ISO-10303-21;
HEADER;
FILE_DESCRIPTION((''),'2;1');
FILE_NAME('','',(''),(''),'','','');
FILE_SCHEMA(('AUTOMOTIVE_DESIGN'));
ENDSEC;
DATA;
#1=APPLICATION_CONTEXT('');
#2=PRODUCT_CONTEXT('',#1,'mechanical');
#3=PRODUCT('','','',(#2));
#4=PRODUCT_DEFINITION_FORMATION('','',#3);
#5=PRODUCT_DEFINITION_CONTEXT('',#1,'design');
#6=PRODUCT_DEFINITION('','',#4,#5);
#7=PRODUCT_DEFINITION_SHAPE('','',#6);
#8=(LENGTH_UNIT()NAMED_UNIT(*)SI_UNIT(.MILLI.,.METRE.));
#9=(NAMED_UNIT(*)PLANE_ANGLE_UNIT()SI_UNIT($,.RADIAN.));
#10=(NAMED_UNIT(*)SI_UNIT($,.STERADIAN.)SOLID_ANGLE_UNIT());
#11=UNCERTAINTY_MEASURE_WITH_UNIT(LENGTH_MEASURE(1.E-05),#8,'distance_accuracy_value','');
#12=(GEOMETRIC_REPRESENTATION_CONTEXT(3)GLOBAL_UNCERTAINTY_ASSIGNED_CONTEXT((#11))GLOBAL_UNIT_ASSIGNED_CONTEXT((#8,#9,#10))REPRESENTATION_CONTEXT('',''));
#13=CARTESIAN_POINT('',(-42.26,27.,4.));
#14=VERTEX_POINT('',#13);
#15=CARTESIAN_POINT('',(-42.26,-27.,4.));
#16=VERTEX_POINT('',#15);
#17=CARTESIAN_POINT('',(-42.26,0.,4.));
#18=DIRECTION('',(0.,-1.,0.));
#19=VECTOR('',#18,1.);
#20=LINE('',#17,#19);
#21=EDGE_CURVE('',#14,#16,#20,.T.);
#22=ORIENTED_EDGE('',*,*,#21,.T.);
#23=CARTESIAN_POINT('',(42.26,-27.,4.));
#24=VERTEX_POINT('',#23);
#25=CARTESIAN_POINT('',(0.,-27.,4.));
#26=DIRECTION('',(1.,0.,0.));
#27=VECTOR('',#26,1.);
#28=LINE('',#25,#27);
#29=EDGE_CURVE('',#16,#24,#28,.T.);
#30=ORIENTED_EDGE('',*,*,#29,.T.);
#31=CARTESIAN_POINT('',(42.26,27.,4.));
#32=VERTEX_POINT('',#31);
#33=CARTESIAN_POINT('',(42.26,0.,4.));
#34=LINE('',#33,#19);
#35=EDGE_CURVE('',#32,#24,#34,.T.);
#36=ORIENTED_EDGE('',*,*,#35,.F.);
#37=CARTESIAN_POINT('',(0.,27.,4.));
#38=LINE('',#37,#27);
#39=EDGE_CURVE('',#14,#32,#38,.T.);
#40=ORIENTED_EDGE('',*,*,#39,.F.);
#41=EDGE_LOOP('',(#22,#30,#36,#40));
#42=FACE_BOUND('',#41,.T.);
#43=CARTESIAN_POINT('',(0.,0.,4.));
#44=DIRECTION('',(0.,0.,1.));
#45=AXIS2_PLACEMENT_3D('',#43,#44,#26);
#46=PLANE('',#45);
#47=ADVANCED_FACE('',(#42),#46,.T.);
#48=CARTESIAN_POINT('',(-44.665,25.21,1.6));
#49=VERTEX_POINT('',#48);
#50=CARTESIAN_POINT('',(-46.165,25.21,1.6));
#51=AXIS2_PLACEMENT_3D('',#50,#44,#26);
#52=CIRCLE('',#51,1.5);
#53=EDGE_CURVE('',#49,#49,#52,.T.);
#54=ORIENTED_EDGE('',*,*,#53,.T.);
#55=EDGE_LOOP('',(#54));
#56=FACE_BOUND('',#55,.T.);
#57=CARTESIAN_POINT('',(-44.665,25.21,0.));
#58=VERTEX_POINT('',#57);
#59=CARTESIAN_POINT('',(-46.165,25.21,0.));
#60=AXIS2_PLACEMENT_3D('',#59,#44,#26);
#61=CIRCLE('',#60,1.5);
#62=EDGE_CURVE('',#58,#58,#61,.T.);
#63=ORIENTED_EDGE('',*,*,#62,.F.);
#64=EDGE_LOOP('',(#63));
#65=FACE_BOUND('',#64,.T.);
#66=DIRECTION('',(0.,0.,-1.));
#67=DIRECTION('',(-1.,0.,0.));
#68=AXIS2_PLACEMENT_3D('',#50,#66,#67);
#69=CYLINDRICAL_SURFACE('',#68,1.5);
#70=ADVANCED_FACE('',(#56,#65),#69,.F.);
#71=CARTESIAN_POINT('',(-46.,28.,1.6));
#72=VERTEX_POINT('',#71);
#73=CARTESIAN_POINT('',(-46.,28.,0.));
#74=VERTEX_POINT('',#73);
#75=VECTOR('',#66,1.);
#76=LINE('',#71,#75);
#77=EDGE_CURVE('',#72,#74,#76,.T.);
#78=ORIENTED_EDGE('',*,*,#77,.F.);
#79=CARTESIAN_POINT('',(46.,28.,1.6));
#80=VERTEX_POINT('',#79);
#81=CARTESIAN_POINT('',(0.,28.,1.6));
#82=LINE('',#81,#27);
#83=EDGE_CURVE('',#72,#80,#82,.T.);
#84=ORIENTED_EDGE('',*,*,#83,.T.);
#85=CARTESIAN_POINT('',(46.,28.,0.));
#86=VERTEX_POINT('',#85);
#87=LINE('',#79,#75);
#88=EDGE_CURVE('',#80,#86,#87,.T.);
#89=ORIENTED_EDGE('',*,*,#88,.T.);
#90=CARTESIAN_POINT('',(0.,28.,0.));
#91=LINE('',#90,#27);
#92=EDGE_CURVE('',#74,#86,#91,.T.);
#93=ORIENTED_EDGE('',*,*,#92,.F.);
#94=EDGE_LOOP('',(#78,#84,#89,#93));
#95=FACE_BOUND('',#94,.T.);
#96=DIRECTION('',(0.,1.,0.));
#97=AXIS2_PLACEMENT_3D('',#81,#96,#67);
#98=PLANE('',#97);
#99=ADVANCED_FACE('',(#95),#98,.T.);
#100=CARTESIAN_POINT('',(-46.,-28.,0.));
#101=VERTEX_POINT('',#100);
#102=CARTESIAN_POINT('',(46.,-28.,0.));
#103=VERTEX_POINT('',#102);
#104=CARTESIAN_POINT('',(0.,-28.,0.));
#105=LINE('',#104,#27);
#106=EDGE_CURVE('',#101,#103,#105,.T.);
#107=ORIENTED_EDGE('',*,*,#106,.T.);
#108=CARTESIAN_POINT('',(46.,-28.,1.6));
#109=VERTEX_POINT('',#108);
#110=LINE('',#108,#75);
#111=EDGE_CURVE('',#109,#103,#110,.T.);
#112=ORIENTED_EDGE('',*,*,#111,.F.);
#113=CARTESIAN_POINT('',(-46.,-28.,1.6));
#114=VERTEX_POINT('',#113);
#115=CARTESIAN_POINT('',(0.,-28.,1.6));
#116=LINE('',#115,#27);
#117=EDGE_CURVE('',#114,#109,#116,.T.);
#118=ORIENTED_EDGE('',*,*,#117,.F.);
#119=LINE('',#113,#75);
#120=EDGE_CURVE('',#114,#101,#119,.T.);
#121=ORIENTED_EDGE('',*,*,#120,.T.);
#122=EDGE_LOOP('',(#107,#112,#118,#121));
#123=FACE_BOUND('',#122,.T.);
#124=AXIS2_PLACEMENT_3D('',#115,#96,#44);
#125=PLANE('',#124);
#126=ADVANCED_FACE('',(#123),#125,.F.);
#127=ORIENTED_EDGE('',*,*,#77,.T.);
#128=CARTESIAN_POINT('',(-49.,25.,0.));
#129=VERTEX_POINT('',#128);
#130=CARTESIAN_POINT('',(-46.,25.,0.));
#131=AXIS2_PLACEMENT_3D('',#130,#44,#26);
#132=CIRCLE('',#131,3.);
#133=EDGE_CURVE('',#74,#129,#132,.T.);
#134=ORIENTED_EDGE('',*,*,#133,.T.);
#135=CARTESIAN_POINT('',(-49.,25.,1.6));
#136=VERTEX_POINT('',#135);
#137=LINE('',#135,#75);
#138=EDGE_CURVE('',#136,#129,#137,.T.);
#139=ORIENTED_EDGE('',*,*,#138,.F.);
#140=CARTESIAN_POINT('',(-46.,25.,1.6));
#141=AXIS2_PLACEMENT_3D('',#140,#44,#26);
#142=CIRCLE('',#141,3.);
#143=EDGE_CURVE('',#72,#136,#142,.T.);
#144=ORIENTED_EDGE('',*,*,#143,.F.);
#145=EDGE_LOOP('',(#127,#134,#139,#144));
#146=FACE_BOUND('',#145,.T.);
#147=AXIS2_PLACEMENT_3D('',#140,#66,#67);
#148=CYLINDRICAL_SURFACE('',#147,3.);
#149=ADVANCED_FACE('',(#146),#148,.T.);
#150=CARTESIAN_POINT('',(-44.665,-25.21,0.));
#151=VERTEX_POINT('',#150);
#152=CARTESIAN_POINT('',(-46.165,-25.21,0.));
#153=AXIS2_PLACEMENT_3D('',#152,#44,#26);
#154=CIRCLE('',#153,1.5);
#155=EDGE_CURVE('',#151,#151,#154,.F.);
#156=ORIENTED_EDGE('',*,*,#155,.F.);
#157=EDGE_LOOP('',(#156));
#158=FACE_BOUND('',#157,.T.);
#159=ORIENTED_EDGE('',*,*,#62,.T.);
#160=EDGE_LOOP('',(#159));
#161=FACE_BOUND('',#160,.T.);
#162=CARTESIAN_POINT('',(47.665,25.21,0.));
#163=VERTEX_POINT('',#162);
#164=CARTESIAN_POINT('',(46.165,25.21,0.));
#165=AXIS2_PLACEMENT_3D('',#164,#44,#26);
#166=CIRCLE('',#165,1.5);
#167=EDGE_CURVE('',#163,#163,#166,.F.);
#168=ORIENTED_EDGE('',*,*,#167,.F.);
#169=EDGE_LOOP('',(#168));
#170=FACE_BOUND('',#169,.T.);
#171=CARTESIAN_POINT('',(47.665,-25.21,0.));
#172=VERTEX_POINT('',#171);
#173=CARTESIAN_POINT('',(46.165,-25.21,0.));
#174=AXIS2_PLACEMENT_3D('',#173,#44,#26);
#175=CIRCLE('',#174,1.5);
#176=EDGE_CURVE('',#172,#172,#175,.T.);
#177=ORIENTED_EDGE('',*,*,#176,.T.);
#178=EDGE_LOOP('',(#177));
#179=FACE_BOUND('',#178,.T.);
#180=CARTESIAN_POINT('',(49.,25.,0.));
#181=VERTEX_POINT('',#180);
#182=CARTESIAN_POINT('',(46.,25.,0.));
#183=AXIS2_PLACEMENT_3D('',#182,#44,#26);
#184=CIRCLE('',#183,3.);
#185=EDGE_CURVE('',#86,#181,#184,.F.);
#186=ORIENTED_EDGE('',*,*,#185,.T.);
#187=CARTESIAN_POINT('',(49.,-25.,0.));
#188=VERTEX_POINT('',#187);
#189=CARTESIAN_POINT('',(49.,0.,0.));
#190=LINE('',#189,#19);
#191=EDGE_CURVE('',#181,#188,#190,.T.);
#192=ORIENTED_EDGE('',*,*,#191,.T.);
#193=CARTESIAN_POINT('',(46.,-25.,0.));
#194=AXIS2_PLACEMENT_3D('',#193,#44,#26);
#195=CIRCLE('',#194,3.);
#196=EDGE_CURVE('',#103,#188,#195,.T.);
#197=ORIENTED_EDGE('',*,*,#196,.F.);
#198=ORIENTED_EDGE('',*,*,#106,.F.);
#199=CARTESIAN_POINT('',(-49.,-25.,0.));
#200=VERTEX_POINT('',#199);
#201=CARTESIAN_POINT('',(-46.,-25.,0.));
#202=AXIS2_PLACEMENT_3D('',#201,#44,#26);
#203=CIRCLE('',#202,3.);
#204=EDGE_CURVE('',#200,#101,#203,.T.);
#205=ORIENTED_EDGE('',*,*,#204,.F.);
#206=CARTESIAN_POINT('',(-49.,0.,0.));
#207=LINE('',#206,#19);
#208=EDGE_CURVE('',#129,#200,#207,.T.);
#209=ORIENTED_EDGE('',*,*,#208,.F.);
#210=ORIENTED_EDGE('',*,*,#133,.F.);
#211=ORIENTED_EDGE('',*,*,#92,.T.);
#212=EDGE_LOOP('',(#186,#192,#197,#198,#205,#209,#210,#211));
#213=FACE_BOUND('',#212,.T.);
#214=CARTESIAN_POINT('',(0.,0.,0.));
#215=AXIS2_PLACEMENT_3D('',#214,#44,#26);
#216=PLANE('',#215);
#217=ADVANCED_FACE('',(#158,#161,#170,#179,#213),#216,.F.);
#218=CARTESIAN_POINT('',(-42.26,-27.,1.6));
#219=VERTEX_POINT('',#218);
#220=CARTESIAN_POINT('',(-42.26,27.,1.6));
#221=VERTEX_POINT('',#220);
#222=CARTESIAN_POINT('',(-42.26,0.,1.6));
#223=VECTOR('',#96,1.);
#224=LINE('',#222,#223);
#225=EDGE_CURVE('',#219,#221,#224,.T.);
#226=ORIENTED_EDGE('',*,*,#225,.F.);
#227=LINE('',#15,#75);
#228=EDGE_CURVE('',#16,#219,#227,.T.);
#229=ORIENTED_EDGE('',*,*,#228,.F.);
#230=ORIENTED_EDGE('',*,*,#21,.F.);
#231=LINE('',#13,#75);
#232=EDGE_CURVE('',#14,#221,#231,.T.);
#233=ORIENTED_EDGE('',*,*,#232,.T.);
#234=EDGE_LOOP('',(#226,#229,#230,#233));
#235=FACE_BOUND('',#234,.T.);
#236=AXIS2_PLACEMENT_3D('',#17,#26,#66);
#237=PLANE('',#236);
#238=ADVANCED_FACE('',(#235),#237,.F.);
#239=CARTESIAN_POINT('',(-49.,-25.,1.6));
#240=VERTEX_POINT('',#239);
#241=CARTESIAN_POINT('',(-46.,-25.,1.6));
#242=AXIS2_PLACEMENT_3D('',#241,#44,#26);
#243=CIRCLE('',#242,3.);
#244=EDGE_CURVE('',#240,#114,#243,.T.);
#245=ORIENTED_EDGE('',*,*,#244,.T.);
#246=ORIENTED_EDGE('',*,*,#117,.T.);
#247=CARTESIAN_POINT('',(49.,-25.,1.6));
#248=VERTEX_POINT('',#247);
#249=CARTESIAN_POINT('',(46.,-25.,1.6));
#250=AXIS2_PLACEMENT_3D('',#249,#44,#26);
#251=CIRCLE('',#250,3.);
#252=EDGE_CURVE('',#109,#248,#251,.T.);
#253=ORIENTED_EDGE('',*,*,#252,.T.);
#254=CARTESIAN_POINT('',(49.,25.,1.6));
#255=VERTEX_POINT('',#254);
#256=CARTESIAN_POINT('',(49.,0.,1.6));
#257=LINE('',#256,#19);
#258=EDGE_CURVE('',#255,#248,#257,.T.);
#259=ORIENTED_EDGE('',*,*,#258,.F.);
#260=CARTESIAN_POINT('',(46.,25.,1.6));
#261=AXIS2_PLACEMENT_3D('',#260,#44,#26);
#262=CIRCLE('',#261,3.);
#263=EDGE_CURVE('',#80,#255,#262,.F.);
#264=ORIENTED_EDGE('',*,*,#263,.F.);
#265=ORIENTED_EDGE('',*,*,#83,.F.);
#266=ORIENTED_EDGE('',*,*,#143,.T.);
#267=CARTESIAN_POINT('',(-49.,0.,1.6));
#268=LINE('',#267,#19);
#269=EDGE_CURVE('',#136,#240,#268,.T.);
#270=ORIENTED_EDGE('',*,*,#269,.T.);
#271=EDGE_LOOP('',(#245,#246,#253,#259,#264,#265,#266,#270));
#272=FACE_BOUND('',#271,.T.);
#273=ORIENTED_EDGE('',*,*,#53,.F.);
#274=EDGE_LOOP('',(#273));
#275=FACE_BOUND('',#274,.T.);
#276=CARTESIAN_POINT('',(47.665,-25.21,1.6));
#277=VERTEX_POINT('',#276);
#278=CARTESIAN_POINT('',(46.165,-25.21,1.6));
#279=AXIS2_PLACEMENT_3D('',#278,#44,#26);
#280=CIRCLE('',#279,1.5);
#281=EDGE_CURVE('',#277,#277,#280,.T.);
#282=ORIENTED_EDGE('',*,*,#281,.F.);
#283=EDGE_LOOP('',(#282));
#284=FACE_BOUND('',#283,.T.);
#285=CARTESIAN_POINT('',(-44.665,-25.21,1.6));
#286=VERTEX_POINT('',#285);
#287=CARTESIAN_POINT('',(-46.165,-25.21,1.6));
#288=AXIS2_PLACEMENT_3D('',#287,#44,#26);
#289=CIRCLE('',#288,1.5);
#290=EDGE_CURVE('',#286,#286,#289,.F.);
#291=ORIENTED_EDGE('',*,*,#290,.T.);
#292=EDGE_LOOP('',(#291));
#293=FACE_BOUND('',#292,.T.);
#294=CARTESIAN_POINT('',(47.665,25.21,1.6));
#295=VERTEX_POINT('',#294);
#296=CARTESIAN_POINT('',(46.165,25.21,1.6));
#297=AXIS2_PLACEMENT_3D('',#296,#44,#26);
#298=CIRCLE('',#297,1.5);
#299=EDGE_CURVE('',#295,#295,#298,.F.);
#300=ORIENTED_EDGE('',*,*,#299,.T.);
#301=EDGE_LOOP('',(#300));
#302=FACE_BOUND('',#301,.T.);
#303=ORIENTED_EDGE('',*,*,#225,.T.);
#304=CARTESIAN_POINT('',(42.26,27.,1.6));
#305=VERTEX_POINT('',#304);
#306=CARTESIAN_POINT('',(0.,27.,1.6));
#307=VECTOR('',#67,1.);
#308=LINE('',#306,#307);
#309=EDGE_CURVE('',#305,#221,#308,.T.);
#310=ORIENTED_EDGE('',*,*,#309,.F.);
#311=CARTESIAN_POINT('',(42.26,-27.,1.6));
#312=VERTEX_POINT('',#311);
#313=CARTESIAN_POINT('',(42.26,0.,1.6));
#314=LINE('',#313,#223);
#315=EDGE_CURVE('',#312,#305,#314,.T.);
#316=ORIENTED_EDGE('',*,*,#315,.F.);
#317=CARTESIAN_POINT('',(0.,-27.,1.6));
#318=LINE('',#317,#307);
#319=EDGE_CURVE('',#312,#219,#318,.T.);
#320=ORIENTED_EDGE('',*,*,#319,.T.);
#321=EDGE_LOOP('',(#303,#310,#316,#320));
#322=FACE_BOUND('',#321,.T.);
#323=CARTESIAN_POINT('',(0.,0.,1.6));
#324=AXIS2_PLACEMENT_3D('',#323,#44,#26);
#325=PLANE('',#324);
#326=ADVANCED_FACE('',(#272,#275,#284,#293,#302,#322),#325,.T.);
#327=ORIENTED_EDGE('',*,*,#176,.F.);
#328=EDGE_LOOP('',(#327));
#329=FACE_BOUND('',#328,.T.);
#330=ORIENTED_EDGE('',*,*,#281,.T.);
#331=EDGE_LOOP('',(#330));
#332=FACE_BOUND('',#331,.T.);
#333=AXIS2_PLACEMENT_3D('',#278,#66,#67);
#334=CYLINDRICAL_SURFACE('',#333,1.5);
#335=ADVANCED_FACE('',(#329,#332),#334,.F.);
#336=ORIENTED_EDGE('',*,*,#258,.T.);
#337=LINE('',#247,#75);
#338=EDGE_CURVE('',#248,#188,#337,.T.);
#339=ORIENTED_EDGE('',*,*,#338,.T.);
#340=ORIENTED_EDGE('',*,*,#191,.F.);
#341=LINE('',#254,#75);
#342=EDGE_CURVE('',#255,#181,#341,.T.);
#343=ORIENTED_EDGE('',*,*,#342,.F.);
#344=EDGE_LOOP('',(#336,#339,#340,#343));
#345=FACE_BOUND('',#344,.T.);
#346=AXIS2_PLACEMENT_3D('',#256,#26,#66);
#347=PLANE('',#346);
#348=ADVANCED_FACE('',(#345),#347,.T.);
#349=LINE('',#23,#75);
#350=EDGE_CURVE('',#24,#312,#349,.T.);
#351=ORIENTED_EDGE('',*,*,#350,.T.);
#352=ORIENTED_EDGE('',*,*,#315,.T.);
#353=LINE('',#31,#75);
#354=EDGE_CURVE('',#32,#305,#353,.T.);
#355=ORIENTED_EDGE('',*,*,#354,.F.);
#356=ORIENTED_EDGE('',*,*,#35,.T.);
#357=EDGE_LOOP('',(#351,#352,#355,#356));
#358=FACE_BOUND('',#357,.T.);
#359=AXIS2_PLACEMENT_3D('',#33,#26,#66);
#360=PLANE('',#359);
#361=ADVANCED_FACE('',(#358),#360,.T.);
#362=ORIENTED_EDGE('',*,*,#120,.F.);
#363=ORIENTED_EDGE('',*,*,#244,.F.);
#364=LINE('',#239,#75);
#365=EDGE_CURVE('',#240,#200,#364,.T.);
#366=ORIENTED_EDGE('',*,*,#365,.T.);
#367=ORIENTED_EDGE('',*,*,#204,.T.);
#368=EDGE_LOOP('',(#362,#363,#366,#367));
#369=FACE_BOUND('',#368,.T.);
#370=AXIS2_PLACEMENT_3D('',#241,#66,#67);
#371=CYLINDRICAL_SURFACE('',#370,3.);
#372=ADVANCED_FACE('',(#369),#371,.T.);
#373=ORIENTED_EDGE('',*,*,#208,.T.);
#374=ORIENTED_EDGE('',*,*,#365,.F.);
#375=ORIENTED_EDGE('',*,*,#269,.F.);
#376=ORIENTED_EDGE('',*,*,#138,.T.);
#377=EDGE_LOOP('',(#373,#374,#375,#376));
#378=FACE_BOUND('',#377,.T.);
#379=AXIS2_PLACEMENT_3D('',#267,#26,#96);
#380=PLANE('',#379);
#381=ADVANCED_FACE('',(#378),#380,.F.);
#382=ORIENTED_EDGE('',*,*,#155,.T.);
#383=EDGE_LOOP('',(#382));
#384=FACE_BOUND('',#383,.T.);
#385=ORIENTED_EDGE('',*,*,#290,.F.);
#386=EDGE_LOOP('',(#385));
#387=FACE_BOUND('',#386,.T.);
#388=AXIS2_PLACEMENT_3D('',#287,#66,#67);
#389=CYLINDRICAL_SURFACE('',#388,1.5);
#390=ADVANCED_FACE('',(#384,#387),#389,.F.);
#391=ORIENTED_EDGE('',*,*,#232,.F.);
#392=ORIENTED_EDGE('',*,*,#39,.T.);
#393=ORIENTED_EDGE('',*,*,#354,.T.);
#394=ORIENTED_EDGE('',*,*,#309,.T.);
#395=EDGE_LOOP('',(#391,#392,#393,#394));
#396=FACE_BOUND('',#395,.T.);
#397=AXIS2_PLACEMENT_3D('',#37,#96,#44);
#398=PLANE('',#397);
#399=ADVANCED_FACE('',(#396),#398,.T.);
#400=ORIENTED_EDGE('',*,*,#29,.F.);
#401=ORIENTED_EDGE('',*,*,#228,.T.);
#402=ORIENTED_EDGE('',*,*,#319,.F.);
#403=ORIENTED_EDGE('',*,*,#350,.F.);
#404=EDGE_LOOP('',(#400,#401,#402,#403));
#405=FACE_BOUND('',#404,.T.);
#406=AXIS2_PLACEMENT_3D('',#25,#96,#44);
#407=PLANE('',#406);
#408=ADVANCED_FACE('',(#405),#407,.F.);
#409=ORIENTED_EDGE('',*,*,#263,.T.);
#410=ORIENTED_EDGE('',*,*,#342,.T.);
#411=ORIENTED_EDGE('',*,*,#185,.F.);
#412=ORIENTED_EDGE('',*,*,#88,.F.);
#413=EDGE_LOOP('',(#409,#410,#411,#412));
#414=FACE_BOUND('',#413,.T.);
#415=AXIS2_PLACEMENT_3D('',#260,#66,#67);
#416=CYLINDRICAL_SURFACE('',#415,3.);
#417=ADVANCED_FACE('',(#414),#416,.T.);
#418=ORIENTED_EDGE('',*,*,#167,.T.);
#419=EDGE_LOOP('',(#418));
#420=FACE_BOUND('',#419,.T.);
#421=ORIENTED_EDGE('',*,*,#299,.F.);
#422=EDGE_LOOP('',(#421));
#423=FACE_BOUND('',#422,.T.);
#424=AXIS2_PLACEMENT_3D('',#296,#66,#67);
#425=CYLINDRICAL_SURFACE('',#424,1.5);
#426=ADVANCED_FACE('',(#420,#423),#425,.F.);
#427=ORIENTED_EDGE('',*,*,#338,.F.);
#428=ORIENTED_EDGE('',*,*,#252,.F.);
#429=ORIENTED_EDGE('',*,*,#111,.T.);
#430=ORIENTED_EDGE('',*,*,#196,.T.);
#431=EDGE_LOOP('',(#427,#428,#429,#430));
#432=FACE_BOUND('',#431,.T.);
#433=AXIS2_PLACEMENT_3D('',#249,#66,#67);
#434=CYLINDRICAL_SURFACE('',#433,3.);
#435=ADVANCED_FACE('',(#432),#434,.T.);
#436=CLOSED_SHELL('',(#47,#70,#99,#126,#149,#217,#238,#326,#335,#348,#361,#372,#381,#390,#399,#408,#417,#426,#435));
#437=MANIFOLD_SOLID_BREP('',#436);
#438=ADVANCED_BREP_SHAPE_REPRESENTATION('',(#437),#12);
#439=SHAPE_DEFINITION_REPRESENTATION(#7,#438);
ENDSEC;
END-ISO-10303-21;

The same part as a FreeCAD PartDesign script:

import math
import FreeCAD as App
import Part
import Sketcher
Q = App.Units.Quantity


def add_polygon(sketch, points):
    """Adds a closed chain of lines whose ends are joined by coincident constraints."""
    first, n = sketch.GeometryCount, len(points)
    for a, b in zip(points, points[1:] + points[:1]):
        sketch.addGeometry(Part.LineSegment(App.Vector(*a, 0), App.Vector(*b, 0)), False)
    for i in range(n):
        sketch.addConstraint(Sketcher.Constraint("Coincident", first + i, 2, first + (i + 1) % n, 1))

doc = App.newDocument("Part")
body = doc.addObject("PartDesign::Body", "Body")

# Sketch on XY plane
sketch1 = body.newObject("Sketcher::SketchObject", "Sketch")
sketch1.AttachmentSupport = (doc.getObject("XY_Plane"), [""])
sketch1.MapMode = "FlatFace"
sketch1.addGeometry([
    Part.LineSegment(App.Vector(46, 28, 0), App.Vector(-46, 28, 0)),  # 0
    Part.ArcOfCircle(Part.Circle(App.Vector(-46, 25, 0), App.Vector(0, 0, 1), 3), math.radians(90), math.radians(180)),  # 1
    Part.LineSegment(App.Vector(-49, 25, 0), App.Vector(-49, -25, 0)),  # 2
    Part.ArcOfCircle(Part.Circle(App.Vector(-46, -25, 0), App.Vector(0, 0, 1), 3), math.radians(180), math.radians(270)),  # 3
    Part.LineSegment(App.Vector(-46, -28, 0), App.Vector(46, -28, 0)),  # 4
    Part.ArcOfCircle(Part.Circle(App.Vector(46, -25, 0), App.Vector(0, 0, 1), 3), math.radians(-90), math.radians(0)),  # 5
    Part.LineSegment(App.Vector(49, -25, 0), App.Vector(49, 25, 0)),  # 6
    Part.ArcOfCircle(Part.Circle(App.Vector(46, 25, 0), App.Vector(0, 0, 1), 3), math.radians(0), math.radians(90)),  # 7
    Part.Circle(App.Vector(46.2, -25.2, 0), App.Vector(0, 0, 1), 1.5),  # 8
    Part.Circle(App.Vector(-46.2, -25.2, 0), App.Vector(0, 0, 1), 1.5),  # 9
    Part.Circle(App.Vector(46.2, 25.2, 0), App.Vector(0, 0, 1), 1.5),  # 10
    Part.Circle(App.Vector(-46.2, 25.2, 0), App.Vector(0, 0, 1), 1.5),  # 11
], False)
sketch1.addConstraint([
    Sketcher.Constraint("Tangent", 0, 2, 1, 1),
    Sketcher.Constraint("Tangent", 1, 2, 2, 1),
    Sketcher.Constraint("Tangent", 2, 2, 3, 1),
    Sketcher.Constraint("Tangent", 3, 2, 4, 1),
    Sketcher.Constraint("Tangent", 4, 2, 5, 1),
    Sketcher.Constraint("Tangent", 5, 2, 6, 1),
    Sketcher.Constraint("Tangent", 6, 2, 7, 1),
    Sketcher.Constraint("Tangent", 7, 2, 0, 1),
    Sketcher.Constraint("Horizontal", 0),
    Sketcher.Constraint("Vertical", 2),
    Sketcher.Constraint("Horizontal", 4),
    Sketcher.Constraint("Vertical", 6),
    Sketcher.Constraint("Equal", 1, 3),
    Sketcher.Constraint("Equal", 3, 5),
    Sketcher.Constraint("Equal", 5, 7),
    Sketcher.Constraint("Equal", 8, 9),
    Sketcher.Constraint("Equal", 9, 10),
    Sketcher.Constraint("Equal", 10, 11),
    Sketcher.Constraint("Symmetric", 1, 3, 5, 3, -1, 1),
    Sketcher.Constraint("Symmetric", 9, 3, 10, 3, -1, 1),
    Sketcher.Constraint("Symmetric", 8, 3, 11, 3, -1, 1),
    Sketcher.Constraint("Symmetric", 8, 3, 9, 3, -2),
    Sketcher.Constraint("Diameter", 8, Q("3 mm")),
    Sketcher.Constraint("Radius", 1, Q("3 mm")),
    Sketcher.Constraint("DistanceX", 0, 2, 0, 1, Q("92 mm")),
    Sketcher.Constraint("DistanceY", 2, 2, 2, 1, Q("50 mm")),
    Sketcher.Constraint("DistanceY", 8, 3, -1, 1, Q("25.21 mm")),
    Sketcher.Constraint("DistanceX", 9, 3, 8, 3, Q("92.33 mm")),
])
pad1 = body.newObject("PartDesign::Pad", "Pad")
pad1.Profile = sketch1
pad1.Length = 1.6

# Sketch on XY plane
sketch2 = body.newObject("Sketcher::SketchObject", "Sketch001")
sketch2.AttachmentSupport = (doc.getObject("XY_Plane"), [""])
sketch2.MapMode = "FlatFace"
add_polygon(sketch2, [(-42, 27), (-42, -27), (42, -27), (42, 27)])  # lines 0-3
sketch2.addConstraint([
    Sketcher.Constraint("Vertical", 0),
    Sketcher.Constraint("Horizontal", 1),
    Sketcher.Constraint("Vertical", 2),
    Sketcher.Constraint("Horizontal", 3),
    Sketcher.Constraint("Symmetric", 0, 2, 2, 2, -1, 1),
    Sketcher.Constraint("DistanceY", 0, 2, 0, 1, Q("54 mm")),
    Sketcher.Constraint("DistanceX", 1, 1, 1, 2, Q("84.52 mm")),
])
pad2 = body.newObject("PartDesign::Pad", "Pad001")
pad2.Profile = sketch2
pad2.Length = 4

doc.recompute()
